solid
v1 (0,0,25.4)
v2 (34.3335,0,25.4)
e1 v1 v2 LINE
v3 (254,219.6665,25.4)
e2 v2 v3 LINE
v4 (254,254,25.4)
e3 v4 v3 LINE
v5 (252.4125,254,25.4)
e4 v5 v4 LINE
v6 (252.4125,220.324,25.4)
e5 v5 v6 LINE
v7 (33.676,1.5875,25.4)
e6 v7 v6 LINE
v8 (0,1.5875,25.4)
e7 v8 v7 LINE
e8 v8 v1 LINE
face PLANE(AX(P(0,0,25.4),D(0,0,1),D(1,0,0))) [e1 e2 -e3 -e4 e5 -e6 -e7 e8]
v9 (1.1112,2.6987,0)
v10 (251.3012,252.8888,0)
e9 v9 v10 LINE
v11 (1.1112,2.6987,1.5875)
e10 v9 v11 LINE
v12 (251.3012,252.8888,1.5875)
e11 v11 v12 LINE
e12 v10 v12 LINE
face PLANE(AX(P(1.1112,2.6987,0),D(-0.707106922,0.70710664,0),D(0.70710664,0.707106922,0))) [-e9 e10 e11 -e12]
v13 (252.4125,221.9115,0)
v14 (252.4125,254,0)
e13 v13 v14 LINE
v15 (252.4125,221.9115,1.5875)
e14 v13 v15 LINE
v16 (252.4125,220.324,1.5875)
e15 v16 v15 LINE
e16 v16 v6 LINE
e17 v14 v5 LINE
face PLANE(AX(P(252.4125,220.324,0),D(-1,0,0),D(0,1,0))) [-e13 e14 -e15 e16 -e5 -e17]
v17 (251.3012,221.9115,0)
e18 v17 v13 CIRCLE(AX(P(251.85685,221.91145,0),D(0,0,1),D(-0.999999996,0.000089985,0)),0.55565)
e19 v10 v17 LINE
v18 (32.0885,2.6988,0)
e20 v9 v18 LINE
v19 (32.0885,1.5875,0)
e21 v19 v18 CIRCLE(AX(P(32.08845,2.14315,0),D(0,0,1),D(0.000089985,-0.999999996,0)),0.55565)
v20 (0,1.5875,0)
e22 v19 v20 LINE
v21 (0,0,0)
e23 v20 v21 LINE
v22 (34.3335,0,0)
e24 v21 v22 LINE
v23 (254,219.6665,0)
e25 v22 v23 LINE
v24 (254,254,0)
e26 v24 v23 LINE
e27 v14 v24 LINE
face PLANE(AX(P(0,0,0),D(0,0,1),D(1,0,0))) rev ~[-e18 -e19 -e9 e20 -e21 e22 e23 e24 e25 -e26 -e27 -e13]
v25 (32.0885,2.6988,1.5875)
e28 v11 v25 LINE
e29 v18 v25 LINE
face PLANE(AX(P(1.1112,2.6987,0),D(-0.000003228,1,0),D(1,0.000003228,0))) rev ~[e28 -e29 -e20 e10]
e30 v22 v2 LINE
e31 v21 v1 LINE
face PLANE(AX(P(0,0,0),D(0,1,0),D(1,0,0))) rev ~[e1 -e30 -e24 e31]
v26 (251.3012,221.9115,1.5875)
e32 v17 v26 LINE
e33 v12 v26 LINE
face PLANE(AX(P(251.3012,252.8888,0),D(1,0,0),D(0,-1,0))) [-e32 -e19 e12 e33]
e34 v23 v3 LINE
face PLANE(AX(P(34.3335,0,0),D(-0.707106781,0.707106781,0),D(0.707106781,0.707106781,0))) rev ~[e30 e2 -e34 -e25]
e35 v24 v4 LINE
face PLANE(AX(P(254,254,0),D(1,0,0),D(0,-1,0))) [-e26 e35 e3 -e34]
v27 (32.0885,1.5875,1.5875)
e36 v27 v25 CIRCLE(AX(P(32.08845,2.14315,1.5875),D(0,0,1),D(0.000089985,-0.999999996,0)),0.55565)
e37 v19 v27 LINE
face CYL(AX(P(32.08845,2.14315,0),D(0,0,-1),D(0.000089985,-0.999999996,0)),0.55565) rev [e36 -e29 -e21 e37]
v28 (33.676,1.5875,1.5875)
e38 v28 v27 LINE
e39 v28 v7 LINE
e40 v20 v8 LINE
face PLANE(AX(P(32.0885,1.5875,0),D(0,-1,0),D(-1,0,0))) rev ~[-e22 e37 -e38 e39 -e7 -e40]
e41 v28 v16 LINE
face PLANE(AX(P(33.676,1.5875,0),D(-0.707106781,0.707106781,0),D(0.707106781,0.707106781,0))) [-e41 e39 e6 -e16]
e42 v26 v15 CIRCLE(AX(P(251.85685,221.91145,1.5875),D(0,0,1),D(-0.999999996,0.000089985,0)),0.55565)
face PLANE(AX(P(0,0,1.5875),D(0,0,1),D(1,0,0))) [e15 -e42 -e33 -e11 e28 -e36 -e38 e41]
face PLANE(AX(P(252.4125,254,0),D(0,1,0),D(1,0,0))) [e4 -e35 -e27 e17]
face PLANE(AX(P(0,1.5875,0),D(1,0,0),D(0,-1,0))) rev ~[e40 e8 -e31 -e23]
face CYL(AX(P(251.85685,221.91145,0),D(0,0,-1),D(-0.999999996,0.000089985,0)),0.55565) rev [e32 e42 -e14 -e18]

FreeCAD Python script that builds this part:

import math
import FreeCAD as App
import Part
import Sketcher
Q = App.Units.Quantity

doc = App.newDocument("Part")
params = doc.addObject("Spreadsheet::Sheet", "Params")
for row, (alias, value) in enumerate([
    ("sketch1_width", "0.0625 in"),
    ("sketch1_length", "13.93 in"),
    ("pad1_length", "0.0625 in"),
    ("sketch2_width", "0.0625 in"),
    ("pad2_length", "1 in"),
], start=1):
    params.set(f"A{row}", alias)
    params.set(f"B{row}", "=" + value)
    params.setAlias(f"B{row}", alias)

body = doc.addObject("PartDesign::Body", "Body")

# Sketch on XY plane
sketch1 = doc.addObject("Sketcher::SketchObject", "Sketch")
body.addObject(sketch1)
sketch1.AttachmentSupport = (doc.XY_Plane, [""])
sketch1.MapMode = "FlatFace"
sketch1.addGeometry(Part.ArcOfCircle(Part.Circle(App.Vector(32.0885, 2.1431, 0), App.Vector(0, 0, 1), 0.5556), math.radians(-90), math.radians(90)), False)
sketch1.addGeometry(Part.LineSegment(App.Vector(32.0885, 1.5875, 0), App.Vector(33.676, 1.5875, 0)), False)
sketch1.addGeometry(Part.LineSegment(App.Vector(33.676, 1.5875, 0), App.Vector(252.4125, 220.324, 0)), False)
sketch1.addGeometry(Part.LineSegment(App.Vector(252.4125, 220.324, 0), App.Vector(252.4125, 221.9115, 0)), False)
sketch1.addGeometry(Part.ArcOfCircle(Part.Circle(App.Vector(251.8569, 221.9115, 0), App.Vector(0, 0, 1), 0.5557), math.radians(180), math.radians(360)), False)
sketch1.addGeometry(Part.LineSegment(App.Vector(251.3012, 221.9115, 0), App.Vector(251.3012, 252.8888, 0)), False)
sketch1.addGeometry(Part.LineSegment(App.Vector(251.3012, 252.8888, 0), App.Vector(1.1112, 2.6987, 0)), False)
sketch1.addGeometry(Part.LineSegment(App.Vector(1.1112, 2.6987, 0), App.Vector(32.0885, 2.6988, 0)), False)
sketch1.addConstraint(Sketcher.Constraint("Tangent", 0, 1, 1, 1))
sketch1.addConstraint(Sketcher.Constraint("Coincident", 1, 2, 2, 1))
sketch1.addConstraint(Sketcher.Constraint("Coincident", 2, 2, 3, 1))
sketch1.addConstraint(Sketcher.Constraint("Tangent", 3, 2, 4, 2))
sketch1.addConstraint(Sketcher.Constraint("Tangent", 4, 1, 5, 1))
sketch1.addConstraint(Sketcher.Constraint("Coincident", 5, 2, 6, 1))
sketch1.addConstraint(Sketcher.Constraint("Coincident", 6, 2, 7, 1))
sketch1.addConstraint(Sketcher.Constraint("Tangent", 7, 2, 0, 2))
sketch1.addConstraint(Sketcher.Constraint("Horizontal", 1))
sketch1.addConstraint(Sketcher.Constraint("Vertical", 3))
sketch1.addConstraint(Sketcher.Constraint("Vertical", 5))
sketch1.addConstraint(Sketcher.Constraint("Horizontal", 7))
sketch1.addConstraint(Sketcher.Constraint("Equal", 0, 4))
sketch1.addConstraint(Sketcher.Constraint("Parallel", 2, 6))
sketch1.addConstraint(Sketcher.Constraint("Equal", 1, 3))
sketch1.addConstraint(Sketcher.Constraint("Equal", 7, 5))
sketch1.addConstraint(Sketcher.Constraint("DistanceX", 1, 1, 1, 2, Q("0.0625 in")))
sketch1.addConstraint(Sketcher.Constraint("Radius", 0, 0.5556))
sketch1.addConstraint(Sketcher.Constraint("DistanceY", -1, 1, 0, 1, Q("0.0625 in")))
sketch1.addConstraint(Sketcher.Constraint("Distance", 6, Q("13.93 in")))
sketch1.addConstraint(Sketcher.Constraint("DistanceX", -1, 1, 6, 2, 1.1112))
sketch1.addConstraint(Sketcher.Constraint("DistanceX", 7, 1, 7, 2, 30.9773))
sketch1.setExpression("Constraints[16]", "Params.sketch1_width")
sketch1.setExpression("Constraints[19]", "Params.sketch1_length")
pad1 = doc.addObject("PartDesign::Pad", "Pad")
body.addObject(pad1)
pad1.Profile = sketch1
pad1.setExpression("Length", "Params.pad1_length")

# Sketch on XY plane
sketch2 = doc.addObject("Sketcher::SketchObject", "Sketch001")
body.addObject(sketch2)
sketch2.AttachmentSupport = (doc.XY_Plane, [""])
sketch2.MapMode = "FlatFace"
sketch2.addGeometry(Part.LineSegment(App.Vector(0, 1.5875, 0), App.Vector(0, 0, 0)), False)
sketch2.addGeometry(Part.LineSegment(App.Vector(0, 0, 0), App.Vector(34.3335, 0, 0)), False)
sketch2.addGeometry(Part.LineSegment(App.Vector(34.3335, 0, 0), App.Vector(254, 219.6665, 0)), False)
sketch2.addGeometry(Part.LineSegment(App.Vector(254, 219.6665, 0), App.Vector(254, 254, 0)), False)
sketch2.addGeometry(Part.LineSegment(App.Vector(254, 254, 0), App.Vector(252.4125, 254, 0)), False)
sketch2.addGeometry(Part.LineSegment(App.Vector(252.4125, 254, 0), App.Vector(252.4125, 220.324, 0)), False)
sketch2.addGeometry(Part.LineSegment(App.Vector(252.4125, 220.324, 0), App.Vector(33.676, 1.5875, 0)), False)
sketch2.addGeometry(Part.LineSegment(App.Vector(33.676, 1.5875, 0), App.Vector(0, 1.5875, 0)), False)
sketch2.addConstraint(Sketcher.Constraint("Coincident", 0, 2, 1, 1))
sketch2.addConstraint(Sketcher.Constraint("Coincident", 1, 2, 2, 1))
sketch2.addConstraint(Sketcher.Constraint("Coincident", 2, 2, 3, 1))
sketch2.addConstraint(Sketcher.Constraint("Coincident", 3, 2, 4, 1))
sketch2.addConstraint(Sketcher.Constraint("Coincident", 4, 2, 5, 1))
sketch2.addConstraint(Sketcher.Constraint("Coincident", 5, 2, 6, 1))
sketch2.addConstraint(Sketcher.Constraint("Coincident", 6, 2, 7, 1))
sketch2.addConstraint(Sketcher.Constraint("Coincident", 7, 2, 0, 1))
sketch2.addConstraint(Sketcher.Constraint("Vertical", 0))
sketch2.addConstraint(Sketcher.Constraint("Horizontal", 1))
sketch2.addConstraint(Sketcher.Constraint("Vertical", 3))
sketch2.addConstraint(Sketcher.Constraint("Horizontal", 4))
sketch2.addConstraint(Sketcher.Constraint("Vertical", 5))
sketch2.addConstraint(Sketcher.Constraint("Horizontal", 7))
sketch2.addConstraint(Sketcher.Constraint("Coincident", 0, 2, -1, 1))
sketch2.addConstraint(Sketcher.Constraint("Parallel", 2, 6))
sketch2.addConstraint(Sketcher.Constraint("Equal", 4, 0))
sketch2.addConstraint(Sketcher.Constraint("Equal", 1, 3))
sketch2.addConstraint(Sketcher.Constraint("DistanceX", -1, 1, 2, 2, Q("10 in")))
sketch2.addConstraint(Sketcher.Constraint("DistanceY", -1, 1, 3, 2, Q("10 in")))
sketch2.addConstraint(Sketcher.Constraint("DistanceX", 4, 2, 4, 1, Q("0.0625 in")))
sketch2.addConstraint(Sketcher.Constraint("DistanceX", 1, 1, 1, 2, 34.3335))
sketch2.addConstraint(Sketcher.Constraint("DistanceX", 7, 2, 7, 1, 33.676))
sketch2.setExpression("Constraints[20]", "Params.sketch2_width")
pad2 = doc.addObject("PartDesign::Pad", "Pad001")
body.addObject(pad2)
pad2.Profile = sketch2
pad2.setExpression("Length", "Params.pad2_length")

doc.recompute()
